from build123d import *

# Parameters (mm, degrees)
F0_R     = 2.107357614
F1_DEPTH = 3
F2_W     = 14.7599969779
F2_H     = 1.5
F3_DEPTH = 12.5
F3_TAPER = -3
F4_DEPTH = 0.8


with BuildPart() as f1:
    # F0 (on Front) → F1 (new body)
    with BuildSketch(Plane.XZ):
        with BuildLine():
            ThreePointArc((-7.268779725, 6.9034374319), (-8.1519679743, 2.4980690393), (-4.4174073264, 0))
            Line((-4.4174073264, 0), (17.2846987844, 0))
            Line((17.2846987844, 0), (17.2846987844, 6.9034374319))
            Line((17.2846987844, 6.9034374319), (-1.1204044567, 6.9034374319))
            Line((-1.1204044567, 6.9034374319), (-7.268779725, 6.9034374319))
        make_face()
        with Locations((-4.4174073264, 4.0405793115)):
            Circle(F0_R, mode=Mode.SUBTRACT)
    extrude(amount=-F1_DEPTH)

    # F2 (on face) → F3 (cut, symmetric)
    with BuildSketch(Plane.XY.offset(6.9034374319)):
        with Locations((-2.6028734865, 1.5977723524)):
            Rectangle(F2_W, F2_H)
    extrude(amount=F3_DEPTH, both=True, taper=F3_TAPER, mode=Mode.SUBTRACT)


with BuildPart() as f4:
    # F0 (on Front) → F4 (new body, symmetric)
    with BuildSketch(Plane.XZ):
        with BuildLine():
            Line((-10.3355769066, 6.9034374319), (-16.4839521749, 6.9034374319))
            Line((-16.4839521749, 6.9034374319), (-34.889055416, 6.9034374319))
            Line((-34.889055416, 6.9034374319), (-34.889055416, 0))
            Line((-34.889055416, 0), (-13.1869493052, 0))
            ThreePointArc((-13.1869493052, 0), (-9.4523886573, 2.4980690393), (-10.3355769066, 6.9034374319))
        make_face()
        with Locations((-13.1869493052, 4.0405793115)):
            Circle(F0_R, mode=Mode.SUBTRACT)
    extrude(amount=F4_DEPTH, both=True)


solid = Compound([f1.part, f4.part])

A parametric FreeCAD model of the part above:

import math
import FreeCAD as App
import Part
import Sketcher

V = App.Vector

doc = App.newDocument("Part")
body = doc.addObject("PartDesign::Body", "Body")

# Sketch on XZ plane
sketch1 = body.newObject("Sketcher::SketchObject", "Sketch")
sketch1.AttachmentSupport = (doc.getObject("XZ_Plane"), [""])
sketch1.MapMode = "FlatFace"
sketch1.addGeometry(Part.ArcOfCircle(Part.Circle(V(-4.4, 4, 0), V(0, 0, 1), 4), math.radians(135), math.radians(270)), False)
sketch1.addGeometry(Part.LineSegment(V(-4.4, 0, 0), V(17.3, 0, 0)), False)
sketch1.addGeometry(Part.LineSegment(V(17.3, 0, 0), V(17.3, 6.9, 0)), False)
sketch1.addGeometry(Part.LineSegment(V(17.3, 6.9, 0), V(-7.3, 6.9, 0)), False)
sketch1.addGeometry(Part.Circle(V(-4.4, 4, 0), V(0, 0, 1), 2.1), False)
sketch1.addConstraint(Sketcher.Constraint("Tangent", 0, 2, 1, 1))
sketch1.addConstraint(Sketcher.Constraint("Coincident", 1, 2, 2, 1))
sketch1.addConstraint(Sketcher.Constraint("Coincident", 2, 2, 3, 1))
sketch1.addConstraint(Sketcher.Constraint("Coincident", 3, 2, 0, 1))
sketch1.addConstraint(Sketcher.Constraint("Horizontal", 1))
sketch1.addConstraint(Sketcher.Constraint("Vertical", 2))
sketch1.addConstraint(Sketcher.Constraint("Horizontal", 3))
sketch1.addConstraint(Sketcher.Constraint("Coincident", 4, 3, 0, 3))
sketch1.addConstraint(Sketcher.Constraint("PointOnObject", 0, 2, -1))
sketch1.addConstraint(Sketcher.Constraint("Radius", 0, 4.040579))
sketch1.addConstraint(Sketcher.Constraint("Diameter", 4, 4.214715))
sketch1.addConstraint(Sketcher.Constraint("DistanceX", 3, 2, 3, 1, 24.553479))
sketch1.addConstraint(Sketcher.Constraint("DistanceX", -1, 1, 1, 2, 17.284699))
sketch1.addConstraint(Sketcher.Constraint("DistanceX", 1, 1, 1, 2, 21.702106))
pad1 = body.newObject("PartDesign::Pad", "Pad")
pad1.Profile = sketch1
pad1.Length = 3
pad1.Reversed = True

# Sketch on XY plane
sketch2 = body.newObject("Sketcher::SketchObject", "Sketch001")
sketch2.AttachmentSupport = (doc.getObject("XY_Plane"), [""])
sketch2.MapMode = "FlatFace"
sketch2.AttachmentOffset = App.Placement(V(0, 0, 6.903437), App.Rotation())
sketch2.addGeometry(Part.LineSegment(V(-10, 2.3, 0), V(-10, 0.8, 0)), False)
sketch2.addGeometry(Part.LineSegment(V(-10, 0.8, 0), V(4.8, 0.8, 0)), False)
sketch2.addGeometry(Part.LineSegment(V(4.8, 0.8, 0), V(4.8, 2.3, 0)), False)
sketch2.addGeometry(Part.LineSegment(V(4.8, 2.3, 0), V(-10, 2.3, 0)), False)
sketch2.addConstraint(Sketcher.Constraint("Coincident", 0, 2, 1, 1))
sketch2.addConstraint(Sketcher.Constraint("Coincident", 1, 2, 2, 1))
sketch2.addConstraint(Sketcher.Constraint("Coincident", 2, 2, 3, 1))
sketch2.addConstraint(Sketcher.Constraint("Coincident", 3, 2, 0, 1))
sketch2.addConstraint(Sketcher.Constraint("Vertical", 0))
sketch2.addConstraint(Sketcher.Constraint("Horizontal", 1))
sketch2.addConstraint(Sketcher.Constraint("Vertical", 2))
sketch2.addConstraint(Sketcher.Constraint("Horizontal", 3))
sketch2.addConstraint(Sketcher.Constraint("DistanceY", 0, 2, 0, 1, 1.5))
sketch2.addConstraint(Sketcher.Constraint("DistanceX", 1, 1, 1, 2, 14.759997))
sketch2.addConstraint(Sketcher.Constraint("DistanceX", 0, 2, -1, 1, 9.982872))
sketch2.addConstraint(Sketcher.Constraint("DistanceY", -1, 1, 0, 2, 0.847772))
pocket1 = body.newObject("PartDesign::Pocket", "Pocket")
pocket1.Profile = sketch2
pocket1.Length = 25
pocket1.Midplane = True
pocket1.TaperAngle = 3
body2 = doc.addObject("PartDesign::Body", "Body001")

# Sketch on XZ plane
sketch3 = body2.newObject("Sketcher::SketchObject", "Sketch002")
sketch3.AttachmentSupport = (doc.getObject("XZ_Plane001"), [""])
sketch3.MapMode = "FlatFace"
sketch3.addGeometry(Part.LineSegment(V(-10.3, 6.9, 0), V(-34.9, 6.9, 0)), False)
sketch3.addGeometry(Part.LineSegment(V(-34.9, 6.9, 0), V(-34.9, 0, 0)), False)
sketch3.addGeometry(Part.LineSegment(V(-34.9, 0, 0), V(-13.2, 0, 0)), False)
sketch3.addGeometry(Part.ArcOfCircle(Part.Circle(V(-13.2, 4, 0), V(0, 0, 1), 4), math.radians(-90), math.radians(45)), False)
sketch3.addGeometry(Part.Circle(V(-13.2, 4, 0), V(0, 0, 1), 2.1), False)
sketch3.addConstraint(Sketcher.Constraint("Coincident", 0, 2, 1, 1))
sketch3.addConstraint(Sketcher.Constraint("Coincident", 1, 2, 2, 1))
sketch3.addConstraint(Sketcher.Constraint("Tangent", 2, 2, 3, 1))
sketch3.addConstraint(Sketcher.Constraint("Coincident", 3, 2, 0, 1))
sketch3.addConstraint(Sketcher.Constraint("Horizontal", 0))
sketch3.addConstraint(Sketcher.Constraint("Vertical", 1))
sketch3.addConstraint(Sketcher.Constraint("Horizontal", 2))
sketch3.addConstraint(Sketcher.Constraint("Coincident", 4, 3, 3, 3))
sketch3.addConstraint(Sketcher.Constraint("PointOnObject", 1, 2, -1))
sketch3.addConstraint(Sketcher.Constraint("Radius", 3, 4.040579))
sketch3.addConstraint(Sketcher.Constraint("Diameter", 4, 4.214715))
sketch3.addConstraint(Sketcher.Constraint("DistanceX", 0, 2, 0, 1, 24.553479))
sketch3.addConstraint(Sketcher.Constraint("DistanceX", 2, 1, 2, 2, 21.702106))
sketch3.addConstraint(Sketcher.Constraint("DistanceX", 3, 3, -1, 1, 13.186949))
pad2 = body2.newObject("PartDesign::Pad", "Pad001")
pad2.Profile = sketch3
pad2.Length = 1.6
pad2.Midplane = True

doc.recompute()
